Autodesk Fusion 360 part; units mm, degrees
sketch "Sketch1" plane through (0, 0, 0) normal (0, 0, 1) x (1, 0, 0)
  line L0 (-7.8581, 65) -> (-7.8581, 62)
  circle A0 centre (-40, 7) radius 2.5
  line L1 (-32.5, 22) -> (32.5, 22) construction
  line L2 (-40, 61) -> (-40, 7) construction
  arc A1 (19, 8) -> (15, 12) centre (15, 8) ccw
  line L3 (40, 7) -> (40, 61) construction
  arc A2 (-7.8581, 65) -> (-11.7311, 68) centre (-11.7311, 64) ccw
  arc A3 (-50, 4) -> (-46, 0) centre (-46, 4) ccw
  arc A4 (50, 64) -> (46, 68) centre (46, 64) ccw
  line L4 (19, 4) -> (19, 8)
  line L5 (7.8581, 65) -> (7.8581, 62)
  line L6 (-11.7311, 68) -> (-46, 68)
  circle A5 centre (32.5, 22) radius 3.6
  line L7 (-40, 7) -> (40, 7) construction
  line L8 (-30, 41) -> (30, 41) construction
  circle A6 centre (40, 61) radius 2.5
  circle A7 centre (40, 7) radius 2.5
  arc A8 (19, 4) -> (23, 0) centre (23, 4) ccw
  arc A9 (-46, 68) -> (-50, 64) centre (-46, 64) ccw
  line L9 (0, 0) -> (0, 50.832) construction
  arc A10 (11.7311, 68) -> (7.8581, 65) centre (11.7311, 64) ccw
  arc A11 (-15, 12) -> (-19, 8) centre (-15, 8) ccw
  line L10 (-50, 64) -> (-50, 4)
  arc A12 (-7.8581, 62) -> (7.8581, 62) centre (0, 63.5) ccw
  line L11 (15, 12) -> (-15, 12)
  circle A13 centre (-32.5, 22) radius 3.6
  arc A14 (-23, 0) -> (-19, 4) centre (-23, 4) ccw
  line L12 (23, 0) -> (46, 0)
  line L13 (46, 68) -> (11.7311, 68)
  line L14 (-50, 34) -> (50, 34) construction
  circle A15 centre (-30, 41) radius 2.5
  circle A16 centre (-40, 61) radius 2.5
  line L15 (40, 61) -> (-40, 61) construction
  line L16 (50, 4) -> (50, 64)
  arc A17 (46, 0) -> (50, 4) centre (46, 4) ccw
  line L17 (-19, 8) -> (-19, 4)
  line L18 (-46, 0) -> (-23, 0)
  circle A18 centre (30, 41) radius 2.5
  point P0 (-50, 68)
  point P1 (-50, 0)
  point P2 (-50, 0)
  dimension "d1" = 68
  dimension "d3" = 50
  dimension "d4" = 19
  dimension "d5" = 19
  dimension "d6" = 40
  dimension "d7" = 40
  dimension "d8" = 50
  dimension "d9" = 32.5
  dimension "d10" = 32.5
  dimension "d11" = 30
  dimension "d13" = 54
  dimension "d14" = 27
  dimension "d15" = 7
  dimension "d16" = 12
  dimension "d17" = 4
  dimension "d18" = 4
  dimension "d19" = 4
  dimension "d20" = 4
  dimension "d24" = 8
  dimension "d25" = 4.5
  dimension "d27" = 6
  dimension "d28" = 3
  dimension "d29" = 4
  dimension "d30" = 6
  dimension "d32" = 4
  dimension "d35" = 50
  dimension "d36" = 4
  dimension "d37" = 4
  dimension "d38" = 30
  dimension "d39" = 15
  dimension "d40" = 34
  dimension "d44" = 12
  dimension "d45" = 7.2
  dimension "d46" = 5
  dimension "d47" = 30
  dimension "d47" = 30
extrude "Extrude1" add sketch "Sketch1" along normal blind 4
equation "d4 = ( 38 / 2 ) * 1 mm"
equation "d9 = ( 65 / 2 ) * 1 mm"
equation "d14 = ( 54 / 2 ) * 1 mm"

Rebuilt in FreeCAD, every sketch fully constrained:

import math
import FreeCAD as App
import Part
import Sketcher
Q = App.Units.Quantity

doc = App.newDocument("Part")
body = doc.addObject("PartDesign::Body", "Body")

# Sketch on XY plane
sketch1 = doc.addObject("Sketcher::SketchObject", "Sketch")
body.addObject(sketch1)
sketch1.AttachmentSupport = (doc.XY_Plane, [""])
sketch1.MapMode = "FlatFace"
sketch1.addGeometry([
    Part.LineSegment(App.Vector(-7.9, 62, 0), App.Vector(-7.9, 65, 0)),  # 0
    Part.ArcOfCircle(Part.Circle(App.Vector(-11.7, 64, 0), App.Vector(0, 0, 1), 4), math.radians(14), math.radians(90)),  # 1
    Part.LineSegment(App.Vector(-11.7, 68, 0), App.Vector(-46, 68, 0)),  # 2
    Part.ArcOfCircle(Part.Circle(App.Vector(-46, 64, 0), App.Vector(0, 0, 1), 4), math.radians(90), math.radians(180)),  # 3
    Part.LineSegment(App.Vector(-50, 64, 0), App.Vector(-50, 4, 0)),  # 4
    Part.ArcOfCircle(Part.Circle(App.Vector(-46, 4, 0), App.Vector(0, 0, 1), 4), math.radians(180), math.radians(270)),  # 5
    Part.LineSegment(App.Vector(-46, 0, 0), App.Vector(-23, 0, 0)),  # 6
    Part.ArcOfCircle(Part.Circle(App.Vector(-23, 4, 0), App.Vector(0, 0, 1), 4), math.radians(-90), math.radians(0)),  # 7
    Part.LineSegment(App.Vector(-19, 4, 0), App.Vector(-19, 8, 0)),  # 8
    Part.ArcOfCircle(Part.Circle(App.Vector(-15, 8, 0), App.Vector(0, 0, 1), 4), math.radians(90), math.radians(180)),  # 9
    Part.LineSegment(App.Vector(-15, 12, 0), App.Vector(15, 12, 0)),  # 10
    Part.ArcOfCircle(Part.Circle(App.Vector(15, 8, 0), App.Vector(0, 0, 1), 4), math.radians(0), math.radians(90)),  # 11
    Part.LineSegment(App.Vector(19, 8, 0), App.Vector(19, 4, 0)),  # 12
    Part.ArcOfCircle(Part.Circle(App.Vector(23, 4, 0), App.Vector(0, 0, 1), 4), math.radians(180), math.radians(270)),  # 13
    Part.LineSegment(App.Vector(23, 0, 0), App.Vector(46, 0, 0)),  # 14
    Part.ArcOfCircle(Part.Circle(App.Vector(46, 4, 0), App.Vector(0, 0, 1), 4), math.radians(-90), math.radians(0)),  # 15
    Part.LineSegment(App.Vector(50, 4, 0), App.Vector(50, 64, 0)),  # 16
    Part.ArcOfCircle(Part.Circle(App.Vector(46, 64, 0), App.Vector(0, 0, 1), 4), math.radians(0), math.radians(90)),  # 17
    Part.LineSegment(App.Vector(46, 68, 0), App.Vector(11.7, 68, 0)),  # 18
    Part.ArcOfCircle(Part.Circle(App.Vector(11.7, 64, 0), App.Vector(0, 0, 1), 4), math.radians(90), math.radians(166)),  # 19
    Part.LineSegment(App.Vector(7.9, 65, 0), App.Vector(7.9, 62, 0)),  # 20
    Part.ArcOfCircle(Part.Circle(App.Vector(0, 63.5, 0), App.Vector(0, 0, 1), 8), math.radians(-169), math.radians(-11)),  # 21
    Part.Circle(App.Vector(-40, 7, 0), App.Vector(0, 0, 1), 2.5),  # 22
    Part.Circle(App.Vector(-32.5, 22, 0), App.Vector(0, 0, 1), 3.6),  # 23
    Part.Circle(App.Vector(40, 7, 0), App.Vector(0, 0, 1), 2.5),  # 24
    Part.Circle(App.Vector(32.5, 22, 0), App.Vector(0, 0, 1), 3.6),  # 25
    Part.Circle(App.Vector(-30, 41, 0), App.Vector(0, 0, 1), 2.5),  # 26
    Part.Circle(App.Vector(-40, 61, 0), App.Vector(0, 0, 1), 2.5),  # 27
    Part.Circle(App.Vector(30, 41, 0), App.Vector(0, 0, 1), 2.5),  # 28
    Part.Circle(App.Vector(40, 61, 0), App.Vector(0, 0, 1), 2.5),  # 29
], False)
sketch1.addConstraint([
    Sketcher.Constraint("Coincident", 0, 2, 1, 1),
    Sketcher.Constraint("Tangent", 1, 2, 2, 1),
    Sketcher.Constraint("Tangent", 2, 2, 3, 1),
    Sketcher.Constraint("Tangent", 3, 2, 4, 1),
    Sketcher.Constraint("Tangent", 4, 2, 5, 1),
    Sketcher.Constraint("Tangent", 5, 2, 6, 1),
    Sketcher.Constraint("Tangent", 6, 2, 7, 1),
    Sketcher.Constraint("Tangent", 7, 2, 8, 1),
    Sketcher.Constraint("Tangent", 8, 2, 9, 2),
    Sketcher.Constraint("Tangent", 9, 1, 10, 1),
    Sketcher.Constraint("Tangent", 10, 2, 11, 2),
    Sketcher.Constraint("Tangent", 11, 1, 12, 1),
    Sketcher.Constraint("Tangent", 12, 2, 13, 1),
    Sketcher.Constraint("Tangent", 13, 2, 14, 1),
    Sketcher.Constraint("Tangent", 14, 2, 15, 1),
    Sketcher.Constraint("Tangent", 15, 2, 16, 1),
    Sketcher.Constraint("Tangent", 16, 2, 17, 1),
    Sketcher.Constraint("Tangent", 17, 2, 18, 1),
    Sketcher.Constraint("Tangent", 18, 2, 19, 1),
    Sketcher.Constraint("Coincident", 19, 2, 20, 1),
    Sketcher.Constraint("Coincident", 20, 2, 21, 2),
    Sketcher.Constraint("Coincident", 21, 1, 0, 1),
    Sketcher.Constraint("Vertical", 0),
    Sketcher.Constraint("Horizontal", 2),
    Sketcher.Constraint("Vertical", 4),
    Sketcher.Constraint("Horizontal", 6),
    Sketcher.Constraint("Vertical", 8),
    Sketcher.Constraint("Horizontal", 10),
    Sketcher.Constraint("Vertical", 12),
    Sketcher.Constraint("Horizontal", 14),
    Sketcher.Constraint("Vertical", 16),
    Sketcher.Constraint("Horizontal", 18),
    Sketcher.Constraint("Vertical", 20),
    Sketcher.Constraint("Equal", 1, 3),
    Sketcher.Constraint("Equal", 3, 5),
    Sketcher.Constraint("Equal", 5, 7),
    Sketcher.Constraint("Equal", 7, 9),
    Sketcher.Constraint("Equal", 9, 11),
    Sketcher.Constraint("Equal", 11, 13),
    Sketcher.Constraint("Equal", 13, 15),
    Sketcher.Constraint("Equal", 15, 17),
    Sketcher.Constraint("Equal", 17, 19),
    Sketcher.Constraint("Equal", 22, 24),
    Sketcher.Constraint("Equal", 23, 25),
    Sketcher.Constraint("Equal", 24, 26),
    Sketcher.Constraint("Equal", 26, 27),
    Sketcher.Constraint("Equal", 27, 28),
    Sketcher.Constraint("Equal", 28, 29),
    Sketcher.Constraint("Symmetric", 6, 2, 13, 2, -1, 1),
    Sketcher.Constraint("Symmetric", 5, 3, 15, 3, -2),
    Sketcher.Constraint("Symmetric", 1, 3, 19, 3, -2),
    Sketcher.Constraint("Symmetric", 22, 3, 24, 3, -2),
    Sketcher.Constraint("Symmetric", 23, 3, 25, 3, -2),
    Sketcher.Constraint("Symmetric", 26, 3, 28, 3, -2),
    Sketcher.Constraint("Symmetric", 27, 3, 29, 3, -2),
    Sketcher.Constraint("Symmetric", 20, 2, 21, 1, -2),
    Sketcher.Constraint("Vertical", 22, 3, 27, 3),
    Sketcher.Constraint("Diameter", 22, Q("5 mm")),
    Sketcher.Constraint("Radius", 1, Q("4 mm")),
    Sketcher.Constraint("Radius", 21, Q("8 mm")),
    Sketcher.Constraint("Diameter", 23, Q("7.2 mm")),
    Sketcher.Constraint("DistanceX", 10, 1, 10, 2, Q("30 mm")),
    Sketcher.Constraint("DistanceY", 0, 1, 0, 2, Q("3 mm")),
    Sketcher.Constraint("DistanceY", 8, 1, 8, 2, Q("4 mm")),
    Sketcher.Constraint("DistanceX", 22, 3, -1, 1, Q("40 mm")),
    Sketcher.Constraint("DistanceY", -1, 1, 22, 3, Q("7 mm")),
    Sketcher.Constraint("DistanceX", 26, 3, -1, 1, Q("30 mm")),
    Sketcher.Constraint("DistanceY", -1, 1, 1, 2, Q("68 mm")),
    Sketcher.Constraint("DistanceX", 3, 2, -1, 1, Q("50 mm")),
    Sketcher.Constraint("DistanceY", 22, 3, 23, 3, Q("15 mm")),
    Sketcher.Constraint("DistanceY", 23, 3, 26, 3, Q("19 mm")),
    Sketcher.Constraint("DistanceY", 27, 3, 3, 3, Q("3 mm")),
    Sketcher.Constraint("DistanceY", 27, 3, 0, 2, Q("4 mm")),
    Sketcher.Constraint("DistanceX", 23, 3, -1, 1, Q("32.5 mm")),
    Sketcher.Constraint("DistanceY", 21, 3, 1, 2, Q("4.5 mm")),
])
pad1 = doc.addObject("PartDesign::Pad", "Pad")
body.addObject(pad1)
pad1.Profile = sketch1
pad1.Length = 4

doc.recompute()
